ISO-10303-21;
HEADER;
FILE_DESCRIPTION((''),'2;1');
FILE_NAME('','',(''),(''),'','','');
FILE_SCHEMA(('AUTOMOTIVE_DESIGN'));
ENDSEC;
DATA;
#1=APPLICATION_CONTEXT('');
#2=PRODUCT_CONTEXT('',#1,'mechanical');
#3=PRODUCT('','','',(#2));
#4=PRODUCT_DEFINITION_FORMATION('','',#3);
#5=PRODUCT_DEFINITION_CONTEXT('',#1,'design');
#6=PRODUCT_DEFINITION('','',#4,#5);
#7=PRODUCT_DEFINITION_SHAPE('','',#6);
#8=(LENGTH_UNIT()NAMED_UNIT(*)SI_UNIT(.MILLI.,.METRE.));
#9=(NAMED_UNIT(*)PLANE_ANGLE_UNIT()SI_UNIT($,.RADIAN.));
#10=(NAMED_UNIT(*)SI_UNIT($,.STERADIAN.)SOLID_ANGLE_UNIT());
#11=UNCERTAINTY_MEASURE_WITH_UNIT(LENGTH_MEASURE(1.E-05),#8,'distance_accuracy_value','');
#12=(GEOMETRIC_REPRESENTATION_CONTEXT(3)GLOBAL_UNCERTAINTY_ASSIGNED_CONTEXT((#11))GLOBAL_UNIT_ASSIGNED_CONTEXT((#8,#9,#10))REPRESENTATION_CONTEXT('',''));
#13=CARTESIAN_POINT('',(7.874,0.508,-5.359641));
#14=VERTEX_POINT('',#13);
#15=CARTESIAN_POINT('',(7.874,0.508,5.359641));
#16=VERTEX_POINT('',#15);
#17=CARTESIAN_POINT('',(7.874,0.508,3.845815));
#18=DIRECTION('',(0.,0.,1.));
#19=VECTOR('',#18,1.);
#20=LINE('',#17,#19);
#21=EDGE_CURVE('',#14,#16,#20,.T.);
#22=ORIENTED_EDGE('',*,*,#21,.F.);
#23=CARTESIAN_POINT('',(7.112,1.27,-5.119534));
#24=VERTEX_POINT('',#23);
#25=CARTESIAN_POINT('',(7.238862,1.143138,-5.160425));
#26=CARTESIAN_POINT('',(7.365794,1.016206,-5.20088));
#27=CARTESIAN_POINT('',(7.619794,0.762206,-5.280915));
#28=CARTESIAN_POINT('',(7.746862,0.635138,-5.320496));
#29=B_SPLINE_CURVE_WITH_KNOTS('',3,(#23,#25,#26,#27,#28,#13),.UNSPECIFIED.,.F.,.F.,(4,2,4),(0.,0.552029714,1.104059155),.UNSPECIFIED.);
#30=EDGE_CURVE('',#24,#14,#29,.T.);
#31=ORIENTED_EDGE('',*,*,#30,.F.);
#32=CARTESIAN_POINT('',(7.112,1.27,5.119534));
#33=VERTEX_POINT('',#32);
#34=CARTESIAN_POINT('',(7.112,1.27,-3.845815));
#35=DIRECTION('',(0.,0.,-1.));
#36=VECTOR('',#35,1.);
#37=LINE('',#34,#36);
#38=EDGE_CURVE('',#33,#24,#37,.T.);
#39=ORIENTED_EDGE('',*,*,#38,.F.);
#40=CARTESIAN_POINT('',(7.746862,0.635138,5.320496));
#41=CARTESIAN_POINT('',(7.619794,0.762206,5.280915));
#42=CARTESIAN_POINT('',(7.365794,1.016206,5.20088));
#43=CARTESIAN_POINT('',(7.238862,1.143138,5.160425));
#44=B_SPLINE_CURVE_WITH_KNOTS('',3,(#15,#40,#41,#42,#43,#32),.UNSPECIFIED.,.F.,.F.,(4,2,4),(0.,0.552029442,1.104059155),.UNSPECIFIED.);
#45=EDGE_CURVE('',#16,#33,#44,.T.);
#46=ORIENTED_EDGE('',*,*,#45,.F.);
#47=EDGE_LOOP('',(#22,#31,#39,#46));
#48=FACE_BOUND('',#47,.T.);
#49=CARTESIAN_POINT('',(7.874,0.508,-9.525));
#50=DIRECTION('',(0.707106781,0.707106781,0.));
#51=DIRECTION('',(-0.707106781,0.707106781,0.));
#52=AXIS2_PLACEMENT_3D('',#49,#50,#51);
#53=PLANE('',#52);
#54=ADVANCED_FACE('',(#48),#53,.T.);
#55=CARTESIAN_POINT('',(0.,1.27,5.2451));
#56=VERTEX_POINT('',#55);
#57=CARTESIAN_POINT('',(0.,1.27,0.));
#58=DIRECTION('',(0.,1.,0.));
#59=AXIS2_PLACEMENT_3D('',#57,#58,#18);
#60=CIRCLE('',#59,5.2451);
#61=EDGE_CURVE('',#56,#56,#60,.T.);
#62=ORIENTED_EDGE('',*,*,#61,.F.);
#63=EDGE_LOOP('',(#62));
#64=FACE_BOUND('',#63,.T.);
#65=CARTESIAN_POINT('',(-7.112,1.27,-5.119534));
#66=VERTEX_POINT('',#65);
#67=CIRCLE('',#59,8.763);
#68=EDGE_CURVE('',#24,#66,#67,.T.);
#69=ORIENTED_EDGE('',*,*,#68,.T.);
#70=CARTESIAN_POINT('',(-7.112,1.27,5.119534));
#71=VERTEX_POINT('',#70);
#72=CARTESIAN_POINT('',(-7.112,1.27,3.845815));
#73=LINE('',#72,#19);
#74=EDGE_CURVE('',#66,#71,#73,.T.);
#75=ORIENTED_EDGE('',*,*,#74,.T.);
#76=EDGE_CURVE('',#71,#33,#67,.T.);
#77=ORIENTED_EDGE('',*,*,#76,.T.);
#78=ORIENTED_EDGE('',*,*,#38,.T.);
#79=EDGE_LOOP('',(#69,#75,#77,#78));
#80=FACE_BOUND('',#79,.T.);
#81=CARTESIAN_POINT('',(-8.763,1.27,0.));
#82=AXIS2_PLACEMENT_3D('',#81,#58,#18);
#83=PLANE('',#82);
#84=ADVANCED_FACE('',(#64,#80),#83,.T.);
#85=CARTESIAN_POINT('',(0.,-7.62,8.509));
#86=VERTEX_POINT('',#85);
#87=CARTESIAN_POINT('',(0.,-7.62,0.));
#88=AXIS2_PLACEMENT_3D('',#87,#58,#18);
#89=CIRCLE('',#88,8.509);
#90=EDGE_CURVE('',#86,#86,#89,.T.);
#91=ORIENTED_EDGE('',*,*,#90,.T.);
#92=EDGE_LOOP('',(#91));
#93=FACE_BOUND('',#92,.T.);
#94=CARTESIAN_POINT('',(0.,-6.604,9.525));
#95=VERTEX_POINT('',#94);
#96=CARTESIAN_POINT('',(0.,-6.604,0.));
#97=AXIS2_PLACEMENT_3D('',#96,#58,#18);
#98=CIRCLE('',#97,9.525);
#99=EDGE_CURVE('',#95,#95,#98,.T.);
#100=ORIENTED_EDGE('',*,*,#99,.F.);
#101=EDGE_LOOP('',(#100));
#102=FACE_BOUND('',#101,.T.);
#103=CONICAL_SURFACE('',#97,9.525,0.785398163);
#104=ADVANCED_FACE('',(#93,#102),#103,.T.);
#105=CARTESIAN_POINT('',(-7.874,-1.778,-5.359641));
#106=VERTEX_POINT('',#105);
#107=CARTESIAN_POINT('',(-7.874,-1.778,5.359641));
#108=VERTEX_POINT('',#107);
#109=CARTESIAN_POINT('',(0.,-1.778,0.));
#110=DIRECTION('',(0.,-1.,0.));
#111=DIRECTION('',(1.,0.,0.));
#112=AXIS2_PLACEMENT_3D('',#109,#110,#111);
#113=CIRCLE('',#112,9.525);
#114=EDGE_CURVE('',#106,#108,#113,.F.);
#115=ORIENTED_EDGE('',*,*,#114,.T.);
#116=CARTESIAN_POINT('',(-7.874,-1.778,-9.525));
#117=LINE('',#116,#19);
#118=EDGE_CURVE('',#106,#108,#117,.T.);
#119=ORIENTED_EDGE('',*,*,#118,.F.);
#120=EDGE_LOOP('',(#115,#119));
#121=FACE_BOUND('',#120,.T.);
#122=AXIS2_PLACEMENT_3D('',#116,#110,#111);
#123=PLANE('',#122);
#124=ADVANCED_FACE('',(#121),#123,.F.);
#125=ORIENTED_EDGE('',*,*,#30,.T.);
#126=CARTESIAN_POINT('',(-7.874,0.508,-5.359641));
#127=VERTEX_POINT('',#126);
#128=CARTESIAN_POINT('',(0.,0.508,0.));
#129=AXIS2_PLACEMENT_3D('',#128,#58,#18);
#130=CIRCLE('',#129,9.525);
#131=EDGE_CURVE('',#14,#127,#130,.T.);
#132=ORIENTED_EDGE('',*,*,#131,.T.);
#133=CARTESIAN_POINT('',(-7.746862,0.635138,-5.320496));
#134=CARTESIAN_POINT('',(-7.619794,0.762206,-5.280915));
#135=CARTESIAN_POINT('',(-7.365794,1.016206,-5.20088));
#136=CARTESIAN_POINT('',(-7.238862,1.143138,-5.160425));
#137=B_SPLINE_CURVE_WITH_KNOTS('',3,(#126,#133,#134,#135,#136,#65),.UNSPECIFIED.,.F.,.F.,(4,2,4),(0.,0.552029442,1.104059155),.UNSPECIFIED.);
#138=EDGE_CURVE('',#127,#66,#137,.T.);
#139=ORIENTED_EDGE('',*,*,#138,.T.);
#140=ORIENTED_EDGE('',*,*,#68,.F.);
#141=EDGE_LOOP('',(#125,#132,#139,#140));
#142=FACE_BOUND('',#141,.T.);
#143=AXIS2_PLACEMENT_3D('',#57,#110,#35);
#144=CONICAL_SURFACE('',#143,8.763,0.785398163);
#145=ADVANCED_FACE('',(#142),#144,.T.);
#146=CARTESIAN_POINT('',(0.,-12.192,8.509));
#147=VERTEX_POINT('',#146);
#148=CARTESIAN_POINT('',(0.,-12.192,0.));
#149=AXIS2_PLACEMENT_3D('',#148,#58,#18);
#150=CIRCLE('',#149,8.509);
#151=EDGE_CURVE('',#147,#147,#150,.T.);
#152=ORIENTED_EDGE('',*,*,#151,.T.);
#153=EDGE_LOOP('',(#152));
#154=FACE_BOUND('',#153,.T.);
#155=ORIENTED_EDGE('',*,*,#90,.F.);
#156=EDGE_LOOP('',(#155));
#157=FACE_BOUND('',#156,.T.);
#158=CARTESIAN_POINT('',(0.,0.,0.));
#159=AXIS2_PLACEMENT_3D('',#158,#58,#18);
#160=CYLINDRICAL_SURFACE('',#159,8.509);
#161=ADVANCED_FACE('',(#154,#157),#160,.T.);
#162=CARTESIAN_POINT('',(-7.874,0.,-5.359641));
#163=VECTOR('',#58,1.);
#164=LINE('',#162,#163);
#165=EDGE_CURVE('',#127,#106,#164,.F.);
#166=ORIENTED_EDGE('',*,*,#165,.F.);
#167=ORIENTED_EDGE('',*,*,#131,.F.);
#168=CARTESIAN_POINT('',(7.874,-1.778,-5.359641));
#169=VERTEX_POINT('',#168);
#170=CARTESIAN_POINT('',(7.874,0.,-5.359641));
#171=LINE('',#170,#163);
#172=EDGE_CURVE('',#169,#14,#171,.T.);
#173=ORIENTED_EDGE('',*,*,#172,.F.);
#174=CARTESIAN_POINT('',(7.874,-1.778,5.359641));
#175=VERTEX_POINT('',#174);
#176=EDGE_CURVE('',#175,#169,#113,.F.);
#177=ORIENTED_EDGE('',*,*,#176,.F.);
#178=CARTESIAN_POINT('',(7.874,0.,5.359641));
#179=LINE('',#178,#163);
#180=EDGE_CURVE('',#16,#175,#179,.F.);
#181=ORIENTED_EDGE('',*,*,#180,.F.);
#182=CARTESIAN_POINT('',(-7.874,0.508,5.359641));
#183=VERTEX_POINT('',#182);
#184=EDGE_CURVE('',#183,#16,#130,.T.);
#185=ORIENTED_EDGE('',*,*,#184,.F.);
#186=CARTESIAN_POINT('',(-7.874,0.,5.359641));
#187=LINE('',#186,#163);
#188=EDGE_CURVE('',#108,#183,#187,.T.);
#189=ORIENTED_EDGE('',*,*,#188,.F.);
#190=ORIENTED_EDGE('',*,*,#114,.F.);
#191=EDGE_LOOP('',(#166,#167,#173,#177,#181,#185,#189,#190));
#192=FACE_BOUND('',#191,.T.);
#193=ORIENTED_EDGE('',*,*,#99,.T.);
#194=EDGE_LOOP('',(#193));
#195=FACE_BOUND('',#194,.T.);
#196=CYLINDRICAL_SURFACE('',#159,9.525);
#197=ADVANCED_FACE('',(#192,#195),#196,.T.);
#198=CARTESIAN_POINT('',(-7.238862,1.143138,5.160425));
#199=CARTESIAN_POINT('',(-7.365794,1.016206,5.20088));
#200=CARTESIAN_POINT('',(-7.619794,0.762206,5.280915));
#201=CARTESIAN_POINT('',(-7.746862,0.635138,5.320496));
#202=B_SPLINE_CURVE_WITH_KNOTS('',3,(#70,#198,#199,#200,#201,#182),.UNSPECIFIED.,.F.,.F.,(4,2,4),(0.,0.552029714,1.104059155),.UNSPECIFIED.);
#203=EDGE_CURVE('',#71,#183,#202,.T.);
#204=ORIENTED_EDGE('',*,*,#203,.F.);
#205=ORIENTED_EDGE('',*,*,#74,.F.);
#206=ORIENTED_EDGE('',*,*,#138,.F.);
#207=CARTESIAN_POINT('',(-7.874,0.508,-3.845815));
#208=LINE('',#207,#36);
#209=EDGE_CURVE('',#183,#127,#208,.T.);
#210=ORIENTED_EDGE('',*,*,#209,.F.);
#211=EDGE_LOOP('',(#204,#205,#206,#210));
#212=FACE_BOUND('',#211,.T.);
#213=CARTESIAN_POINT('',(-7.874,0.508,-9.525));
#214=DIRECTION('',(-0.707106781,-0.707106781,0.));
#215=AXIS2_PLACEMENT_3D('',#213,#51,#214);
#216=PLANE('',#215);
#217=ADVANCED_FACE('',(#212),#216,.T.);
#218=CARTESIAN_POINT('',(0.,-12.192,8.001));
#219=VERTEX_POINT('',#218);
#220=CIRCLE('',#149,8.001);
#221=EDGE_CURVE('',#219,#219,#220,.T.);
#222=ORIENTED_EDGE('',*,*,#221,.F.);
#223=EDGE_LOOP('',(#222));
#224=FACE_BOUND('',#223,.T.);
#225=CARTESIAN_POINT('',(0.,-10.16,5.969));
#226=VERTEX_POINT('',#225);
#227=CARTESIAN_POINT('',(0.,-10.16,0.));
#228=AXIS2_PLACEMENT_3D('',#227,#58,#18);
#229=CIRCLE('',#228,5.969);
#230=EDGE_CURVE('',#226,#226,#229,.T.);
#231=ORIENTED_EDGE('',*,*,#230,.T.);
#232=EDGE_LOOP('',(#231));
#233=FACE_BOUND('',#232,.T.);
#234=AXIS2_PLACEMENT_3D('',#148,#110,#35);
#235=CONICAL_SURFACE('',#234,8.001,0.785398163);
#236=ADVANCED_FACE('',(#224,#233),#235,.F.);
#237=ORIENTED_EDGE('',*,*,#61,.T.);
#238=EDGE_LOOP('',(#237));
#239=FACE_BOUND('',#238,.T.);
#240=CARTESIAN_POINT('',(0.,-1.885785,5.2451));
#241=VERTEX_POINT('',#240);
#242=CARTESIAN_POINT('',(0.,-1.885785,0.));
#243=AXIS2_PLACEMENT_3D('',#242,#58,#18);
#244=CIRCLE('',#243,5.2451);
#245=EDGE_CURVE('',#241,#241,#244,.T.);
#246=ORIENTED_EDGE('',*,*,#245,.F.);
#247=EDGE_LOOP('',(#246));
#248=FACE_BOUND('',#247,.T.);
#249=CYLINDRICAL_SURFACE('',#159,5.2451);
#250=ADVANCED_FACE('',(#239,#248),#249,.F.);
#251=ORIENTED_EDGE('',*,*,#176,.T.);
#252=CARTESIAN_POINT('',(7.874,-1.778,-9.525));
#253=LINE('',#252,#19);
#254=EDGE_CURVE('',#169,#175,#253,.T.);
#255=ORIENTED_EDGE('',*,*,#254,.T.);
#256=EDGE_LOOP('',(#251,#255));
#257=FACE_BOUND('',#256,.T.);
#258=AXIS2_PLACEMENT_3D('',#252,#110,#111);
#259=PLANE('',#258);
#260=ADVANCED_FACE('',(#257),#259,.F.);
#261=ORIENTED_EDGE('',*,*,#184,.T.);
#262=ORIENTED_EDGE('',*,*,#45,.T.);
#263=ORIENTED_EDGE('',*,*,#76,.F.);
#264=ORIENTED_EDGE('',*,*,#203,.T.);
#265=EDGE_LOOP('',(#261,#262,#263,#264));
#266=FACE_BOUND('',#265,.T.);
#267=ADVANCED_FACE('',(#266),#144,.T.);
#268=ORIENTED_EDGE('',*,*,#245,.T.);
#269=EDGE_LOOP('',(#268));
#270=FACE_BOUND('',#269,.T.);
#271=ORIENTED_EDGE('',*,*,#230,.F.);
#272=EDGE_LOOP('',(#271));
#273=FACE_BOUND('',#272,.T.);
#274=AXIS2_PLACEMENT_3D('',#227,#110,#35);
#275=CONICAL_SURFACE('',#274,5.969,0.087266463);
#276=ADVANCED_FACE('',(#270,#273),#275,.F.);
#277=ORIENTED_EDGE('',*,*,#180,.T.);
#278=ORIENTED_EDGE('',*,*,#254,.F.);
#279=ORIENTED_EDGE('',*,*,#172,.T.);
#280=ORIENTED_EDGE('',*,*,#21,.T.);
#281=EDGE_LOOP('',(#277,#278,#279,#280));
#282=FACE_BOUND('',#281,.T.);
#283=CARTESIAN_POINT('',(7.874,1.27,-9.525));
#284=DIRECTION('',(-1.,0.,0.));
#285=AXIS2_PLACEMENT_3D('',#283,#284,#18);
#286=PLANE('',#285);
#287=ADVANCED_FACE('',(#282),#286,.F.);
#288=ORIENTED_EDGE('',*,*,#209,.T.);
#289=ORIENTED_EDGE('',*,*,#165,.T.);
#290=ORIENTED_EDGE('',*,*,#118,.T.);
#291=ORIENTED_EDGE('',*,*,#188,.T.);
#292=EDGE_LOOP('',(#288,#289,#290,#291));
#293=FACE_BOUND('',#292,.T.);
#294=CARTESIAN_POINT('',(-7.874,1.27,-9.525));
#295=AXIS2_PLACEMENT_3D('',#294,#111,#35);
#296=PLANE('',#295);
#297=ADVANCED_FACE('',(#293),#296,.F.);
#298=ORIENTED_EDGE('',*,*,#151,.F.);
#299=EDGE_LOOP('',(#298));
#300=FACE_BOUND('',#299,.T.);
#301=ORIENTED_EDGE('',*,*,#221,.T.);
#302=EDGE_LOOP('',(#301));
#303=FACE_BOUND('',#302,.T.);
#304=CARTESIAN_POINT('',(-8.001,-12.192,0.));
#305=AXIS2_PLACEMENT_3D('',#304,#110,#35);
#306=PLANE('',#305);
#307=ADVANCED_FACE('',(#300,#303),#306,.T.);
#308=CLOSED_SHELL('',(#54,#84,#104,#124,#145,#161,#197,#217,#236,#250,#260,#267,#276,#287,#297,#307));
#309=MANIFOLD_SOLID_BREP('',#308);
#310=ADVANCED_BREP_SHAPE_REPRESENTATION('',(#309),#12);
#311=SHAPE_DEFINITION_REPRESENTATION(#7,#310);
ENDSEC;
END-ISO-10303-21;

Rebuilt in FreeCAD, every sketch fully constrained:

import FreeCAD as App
import Part
import Sketcher
from FreeCAD import Vector
Q = App.Units.Quantity


def edges_at(feature, points):
    """Names of the edges that pass closest to the given points."""
    edges = feature.Shape.Edges
    near = lambda p: min(range(len(edges)), key=lambda i: edges[i].distToShape(Part.Vertex(*p))[0])
    return sorted({f"Edge{near(p) + 1}" for p in points})

doc = App.newDocument("Part")
body = doc.addObject("PartDesign::Body", "Body")

sketch1 = body.newObject("Sketcher::SketchObject", "Sketch")
sketch1.AttachmentSupport = (doc.getObject("XY_Plane"), [""])
sketch1.MapMode = "FlatFace"
sketch1.addGeometry([
    Part.LineSegment(Vector(-6, -10.2, 0), Vector(-5.2, -1.9, 0)),
    Part.LineSegment(Vector(-5.2, -1.9, 0), Vector(-5.2, 1.3, 0)),
    Part.LineSegment(Vector(-5.2, 1.3, 0), Vector(-8.8, 1.3, 0)),
    Part.LineSegment(Vector(-8.8, 1.3, 0), Vector(-9.5, 0.5, 0)),
    Part.LineSegment(Vector(-9.5, 0.5, 0), Vector(-9.5, -6.6, 0)),
    Part.LineSegment(Vector(-9.5, -6.6, 0), Vector(-8.5, -7.6, 0)),
    Part.LineSegment(Vector(-8.5, -7.6, 0), Vector(-8.5, -12.2, 0)),
    Part.LineSegment(Vector(-8.5, -12.2, 0), Vector(-8, -12.2, 0)),
    Part.LineSegment(Vector(-8, -12.2, 0), Vector(-6, -10.2, 0)),
], False)
sketch1.addConstraint([
    Sketcher.Constraint("Coincident", 0, 2, 1, 1),
    Sketcher.Constraint("Coincident", 1, 2, 2, 1),
    Sketcher.Constraint("Coincident", 2, 2, 3, 1),
    Sketcher.Constraint("Coincident", 3, 2, 4, 1),
    Sketcher.Constraint("Coincident", 4, 2, 5, 1),
    Sketcher.Constraint("Coincident", 5, 2, 6, 1),
    Sketcher.Constraint("Coincident", 6, 2, 7, 1),
    Sketcher.Constraint("Coincident", 7, 2, 8, 1),
    Sketcher.Constraint("Coincident", 8, 2, 0, 1),
    Sketcher.Constraint("Vertical", 1),
    Sketcher.Constraint("Horizontal", 2),
    Sketcher.Constraint("Vertical", 4),
    Sketcher.Constraint("Vertical", 6),
    Sketcher.Constraint("Horizontal", 7),
    Sketcher.Constraint("Perpendicular", 3, 5),
    Sketcher.Constraint("Perpendicular", 5, 8),
    Sketcher.Constraint("Angle", 0, Q("85 deg")),
    Sketcher.Constraint("Angle", 3, Q("-135 deg")),
    Sketcher.Constraint("DistanceX", 7, 1, 7, 2, Q("0.02 in")),
    Sketcher.Constraint("DistanceY", 4, 2, 4, 1, Q("0.28 in")),
    Sketcher.Constraint("DistanceY", 6, 2, 6, 1, Q("0.18 in")),
    Sketcher.Constraint("DistanceY", 5, 2, -1, 1, Q("0.3 in")),
    Sketcher.Constraint("DistanceY", 8, 2, -1, 1, Q("0.4 in")),
    Sketcher.Constraint("DistanceY", 6, 2, 3, 2, Q("0.5 in")),
    Sketcher.Constraint("DistanceY", -1, 1, 1, 2, Q("0.05 in")),
    Sketcher.Constraint("DistanceX", 2, 2, 2, 1, Q("0.1385 in")),
    Sketcher.Constraint("DistanceX", 2, 2, -1, 1, Q("0.345 in")),
])
revolution = body.newObject("PartDesign::Revolution", "Revolution")
revolution.Profile = sketch1
revolution.ReferenceAxis = (sketch1, ["V_Axis"])
revolution.Angle = 360

sketch2 = body.newObject("Sketcher::SketchObject", "Sketch001")
sketch2.AttachmentSupport = (doc.getObject("XY_Plane"), [""])
sketch2.MapMode = "FlatFace"
sketch2.addGeometry([
    Part.LineSegment(Vector(-9.5, 1.3, 0), Vector(-9.5, -1.8, 0)),
    Part.LineSegment(Vector(-9.5, -1.8, 0), Vector(-7.9, -1.8, 0)),
    Part.LineSegment(Vector(-7.9, -1.8, 0), Vector(-7.9, 1.3, 0)),
    Part.LineSegment(Vector(-7.9, 1.3, 0), Vector(-9.5, 1.3, 0)),
    Part.LineSegment(Vector(7.9, 1.3, 0), Vector(7.9, -1.8, 0)),
    Part.LineSegment(Vector(7.9, -1.8, 0), Vector(9.5, -1.8, 0)),
    Part.LineSegment(Vector(9.5, -1.8, 0), Vector(9.5, 1.3, 0)),
    Part.LineSegment(Vector(9.5, 1.3, 0), Vector(7.9, 1.3, 0)),
], False)
sketch2.addConstraint([
    Sketcher.Constraint("Coincident", 0, 2, 1, 1),
    Sketcher.Constraint("Coincident", 1, 2, 2, 1),
    Sketcher.Constraint("Coincident", 2, 2, 3, 1),
    Sketcher.Constraint("Coincident", 3, 2, 0, 1),
    Sketcher.Constraint("Coincident", 4, 2, 5, 1),
    Sketcher.Constraint("Coincident", 5, 2, 6, 1),
    Sketcher.Constraint("Coincident", 6, 2, 7, 1),
    Sketcher.Constraint("Coincident", 7, 2, 4, 1),
    Sketcher.Constraint("Vertical", 0),
    Sketcher.Constraint("Horizontal", 1),
    Sketcher.Constraint("Vertical", 2),
    Sketcher.Constraint("Horizontal", 3),
    Sketcher.Constraint("Vertical", 4),
    Sketcher.Constraint("Horizontal", 5),
    Sketcher.Constraint("Vertical", 6),
    Sketcher.Constraint("Horizontal", 7),
    Sketcher.Constraint("Symmetric", 1, 2, 4, 2, -2),
    Sketcher.Constraint("Symmetric", 3, 2, 6, 2, -2),
    Sketcher.Constraint("DistanceY", 0, 2, 0, 1, Q("0.12 in")),
    Sketcher.Constraint("DistanceX", 1, 1, 1, 2, Q("0.065 in")),
    Sketcher.Constraint("DistanceY", 0, 2, -1, 1, Q("0.07 in")),
    Sketcher.Constraint("DistanceX", 1, 2, -1, 1, Q("0.31 in")),
])
pocket1 = body.newObject("PartDesign::Pocket", "Pocket")
pocket1.Profile = sketch2
pocket1.Type = "ThroughAll"
pocket1.Midplane = True
doc.recompute()

chamfer = body.newObject("PartDesign::Chamfer", "Chamfer")
chamfer.Base = (pocket1, edges_at(pocket1, [(7.874, 1.27, 0), (-7.874, 1.27, 0)]))
chamfer.Size = Q("0.03 in")

doc.recompute()
